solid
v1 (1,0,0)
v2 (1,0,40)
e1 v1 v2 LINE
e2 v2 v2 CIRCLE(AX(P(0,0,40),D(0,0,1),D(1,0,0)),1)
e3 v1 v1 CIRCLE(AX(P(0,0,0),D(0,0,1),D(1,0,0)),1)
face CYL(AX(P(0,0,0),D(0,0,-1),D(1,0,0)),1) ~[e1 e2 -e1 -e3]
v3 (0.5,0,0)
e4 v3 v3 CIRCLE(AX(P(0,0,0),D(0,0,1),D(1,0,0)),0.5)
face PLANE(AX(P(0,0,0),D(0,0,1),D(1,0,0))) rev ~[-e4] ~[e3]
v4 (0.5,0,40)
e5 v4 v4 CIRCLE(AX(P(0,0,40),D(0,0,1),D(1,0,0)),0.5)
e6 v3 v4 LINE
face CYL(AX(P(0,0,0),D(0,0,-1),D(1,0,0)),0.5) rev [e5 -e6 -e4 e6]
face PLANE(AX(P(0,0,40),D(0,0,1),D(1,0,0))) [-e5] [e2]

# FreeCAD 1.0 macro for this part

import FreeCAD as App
import Part
import Sketcher
from FreeCAD import Vector

doc = App.newDocument("Part")
body = doc.addObject("PartDesign::Body", "Body")

# Sketch on XY plane
sketch1 = body.newObject("Sketcher::SketchObject", "Sketch")
sketch1.AttachmentSupport = (doc.getObject("XY_Plane"), [""])
sketch1.MapMode = "FlatFace"
sketch1.addGeometry([
    Part.Circle(Vector(0, 0, 0), Vector(0, 0, 1), 1),
    Part.Circle(Vector(0, 0, 0), Vector(0, 0, 1), 0.5),
], False)
sketch1.addConstraint([
    Sketcher.Constraint("Coincident", 0, 3, -1, 1),
    Sketcher.Constraint("Coincident", 1, 3, -1, 1),
    Sketcher.Constraint("Diameter", 0, 2.0),
    Sketcher.Constraint("Diameter", 1, 1.0),
])
pad1 = body.newObject("PartDesign::Pad", "Pad")
pad1.Profile = sketch1
pad1.Length = 40

doc.recompute()
